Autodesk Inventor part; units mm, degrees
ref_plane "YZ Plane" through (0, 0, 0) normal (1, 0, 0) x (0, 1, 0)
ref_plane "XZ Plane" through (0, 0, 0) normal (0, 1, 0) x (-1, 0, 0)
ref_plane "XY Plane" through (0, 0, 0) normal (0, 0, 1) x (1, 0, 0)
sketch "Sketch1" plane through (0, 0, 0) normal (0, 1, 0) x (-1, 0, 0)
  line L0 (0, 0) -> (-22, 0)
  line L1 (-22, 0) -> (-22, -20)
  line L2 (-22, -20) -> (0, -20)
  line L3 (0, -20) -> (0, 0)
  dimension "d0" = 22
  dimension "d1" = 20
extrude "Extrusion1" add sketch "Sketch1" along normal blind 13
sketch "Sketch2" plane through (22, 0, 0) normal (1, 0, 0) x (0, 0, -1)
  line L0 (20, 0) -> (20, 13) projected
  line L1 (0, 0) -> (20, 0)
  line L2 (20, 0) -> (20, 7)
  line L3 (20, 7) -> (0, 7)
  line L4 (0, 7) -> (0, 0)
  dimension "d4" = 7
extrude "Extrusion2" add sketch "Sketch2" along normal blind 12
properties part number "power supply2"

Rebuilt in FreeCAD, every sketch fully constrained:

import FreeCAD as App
import Part
import Sketcher


def add_polygon(sketch, points):
    """Adds a closed chain of lines whose ends are joined by coincident constraints."""
    first, n = sketch.GeometryCount, len(points)
    for a, b in zip(points, points[1:] + points[:1]):
        sketch.addGeometry(Part.LineSegment(App.Vector(*a, 0), App.Vector(*b, 0)), False)
    for i in range(n):
        sketch.addConstraint(Sketcher.Constraint("Coincident", first + i, 2, first + (i + 1) % n, 1))

doc = App.newDocument("Part")
body = doc.addObject("PartDesign::Body", "Body")

# Sketch on XZ plane
sketch1 = body.newObject("Sketcher::SketchObject", "Sketch")
sketch1.AttachmentSupport = (doc.getObject("XZ_Plane"), [""])
sketch1.MapMode = "FlatFace"
add_polygon(sketch1, [(0, -20), (0, 0), (22, 0), (22, -20)])  # lines 0-3
sketch1.addConstraint([
    Sketcher.Constraint("Vertical", 0),
    Sketcher.Constraint("Horizontal", 1),
    Sketcher.Constraint("Vertical", 2),
    Sketcher.Constraint("Horizontal", 3),
    Sketcher.Constraint("Coincident", 0, 2, -1, 1),
    Sketcher.Constraint("DistanceX", 1, 1, 1, 2, 22.0),
    Sketcher.Constraint("DistanceY", 0, 1, 0, 2, 20.0),
])
pad1 = body.newObject("PartDesign::Pad", "Pad")
pad1.Profile = sketch1
pad1.Length = 13
pad1.Reversed = True

# Sketch on YZ plane
sketch2 = body.newObject("Sketcher::SketchObject", "Sketch001")
sketch2.AttachmentSupport = (doc.getObject("YZ_Plane"), [""])
sketch2.MapMode = "FlatFace"
sketch2.AttachmentOffset = App.Placement(App.Vector(0, 0, 22), App.Rotation())
add_polygon(sketch2, [(0, 0), (0, -20), (7, -20), (7, 0)])  # lines 0-3
sketch2.addConstraint([
    Sketcher.Constraint("Vertical", 0),
    Sketcher.Constraint("Horizontal", 1),
    Sketcher.Constraint("Vertical", 2),
    Sketcher.Constraint("Horizontal", 3),
    Sketcher.Constraint("Coincident", 3, 2, -1, 1),
    Sketcher.Constraint("DistanceX", 1, 1, 1, 2, 7.0),
    Sketcher.Constraint("DistanceY", 0, 2, 0, 1, 20.0),
])
pad2 = body.newObject("PartDesign::Pad", "Pad001")
pad2.Profile = sketch2
pad2.Length = 12

doc.recompute()
